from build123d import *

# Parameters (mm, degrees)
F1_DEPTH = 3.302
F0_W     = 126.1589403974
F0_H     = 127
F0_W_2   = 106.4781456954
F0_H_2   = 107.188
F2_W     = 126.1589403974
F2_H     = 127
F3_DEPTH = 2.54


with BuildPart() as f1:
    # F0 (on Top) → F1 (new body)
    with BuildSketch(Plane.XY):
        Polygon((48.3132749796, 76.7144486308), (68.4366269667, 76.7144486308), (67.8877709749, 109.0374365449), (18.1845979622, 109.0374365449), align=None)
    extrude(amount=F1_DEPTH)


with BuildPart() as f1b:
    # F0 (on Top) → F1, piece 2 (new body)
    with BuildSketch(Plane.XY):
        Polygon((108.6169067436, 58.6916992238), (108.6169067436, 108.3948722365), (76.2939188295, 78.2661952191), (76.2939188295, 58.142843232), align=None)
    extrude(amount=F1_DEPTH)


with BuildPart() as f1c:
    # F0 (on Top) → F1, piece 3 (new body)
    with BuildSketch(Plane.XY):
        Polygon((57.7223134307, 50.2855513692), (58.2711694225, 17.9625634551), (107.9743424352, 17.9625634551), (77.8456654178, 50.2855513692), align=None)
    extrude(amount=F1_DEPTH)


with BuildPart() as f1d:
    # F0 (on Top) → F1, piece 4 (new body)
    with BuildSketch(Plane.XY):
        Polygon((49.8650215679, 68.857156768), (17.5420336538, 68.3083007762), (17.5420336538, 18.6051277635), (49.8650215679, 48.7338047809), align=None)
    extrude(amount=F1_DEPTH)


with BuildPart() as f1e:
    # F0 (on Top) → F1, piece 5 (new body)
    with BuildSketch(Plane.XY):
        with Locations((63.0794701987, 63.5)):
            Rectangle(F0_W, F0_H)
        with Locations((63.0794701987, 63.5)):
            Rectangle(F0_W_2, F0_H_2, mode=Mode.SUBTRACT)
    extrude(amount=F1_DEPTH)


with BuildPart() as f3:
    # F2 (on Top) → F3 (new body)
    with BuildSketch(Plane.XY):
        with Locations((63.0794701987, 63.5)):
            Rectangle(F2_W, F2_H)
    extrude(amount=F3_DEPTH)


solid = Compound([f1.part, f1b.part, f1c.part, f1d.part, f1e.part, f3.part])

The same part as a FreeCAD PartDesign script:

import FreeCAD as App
import Part
import Sketcher

V = App.Vector
Q = App.Units.Quantity


def add_polygon(sketch, points):
    """Adds a closed chain of lines whose ends are joined by coincident constraints."""
    first, n = sketch.GeometryCount, len(points)
    for a, b in zip(points, points[1:] + points[:1]):
        sketch.addGeometry(Part.LineSegment(App.Vector(*a, 0), App.Vector(*b, 0)), False)
    for i in range(n):
        sketch.addConstraint(Sketcher.Constraint("Coincident", first + i, 2, first + (i + 1) % n, 1))

doc = App.newDocument("Part")
body = doc.addObject("PartDesign::Body", "Body")

# Sketch on XY plane
sketch1 = body.newObject("Sketcher::SketchObject", "Sketch")
sketch1.AttachmentSupport = (doc.getObject("XY_Plane"), [""])
sketch1.MapMode = "FlatFace"
add_polygon(sketch1, [(48, 77), (68, 77), (68, 109), (18, 109)])  # lines 0-3
sketch1.addConstraint([
    Sketcher.Constraint("Horizontal", 0),
    Sketcher.Constraint("Horizontal", 2),
    Sketcher.Constraint("DistanceX", 0, 1, 0, 2, 20.123352),
    Sketcher.Constraint("DistanceX", 2, 2, 2, 1, 49.703173),
    Sketcher.Constraint("DistanceY", -1, 1, 0, 2, 76.714449),
    Sketcher.Constraint("DistanceX", -1, 1, 1, 2, 67.887771),
    Sketcher.Constraint("DistanceX", 2, 2, 0, 2, 50.252029),
    Sketcher.Constraint("Distance", 1, 32.327647),
])
pad1 = body.newObject("PartDesign::Pad", "Pad")
pad1.Profile = sketch1
pad1.Length = Q("0.13 in")
body2 = doc.addObject("PartDesign::Body", "Body001")

# Sketch on XY plane
sketch2 = body2.newObject("Sketcher::SketchObject", "Sketch001")
sketch2.AttachmentSupport = (doc.getObject("XY_Plane001"), [""])
sketch2.MapMode = "FlatFace"
add_polygon(sketch2, [(109, 59), (109, 108), (76, 78), (76, 58)])  # lines 0-3
sketch2.addConstraint([
    Sketcher.Constraint("Vertical", 0),
    Sketcher.Constraint("Vertical", 2),
    Sketcher.Constraint("DistanceY", 2, 2, 2, 1, 20.123352),
    Sketcher.Constraint("DistanceY", -1, 1, 3, 2, 58.691699),
    Sketcher.Constraint("DistanceY", 0, 1, 0, 2, 49.703173),
    Sketcher.Constraint("DistanceX", -1, 1, 1, 2, 76.293919),
    Sketcher.Constraint("DistanceY", 2, 2, 0, 2, 50.252029),
    Sketcher.Constraint("Distance", 1, 44.187246),
])
pad2 = body2.newObject("PartDesign::Pad", "Pad001")
pad2.Profile = sketch2
pad2.Length = Q("0.13 in")
body3 = doc.addObject("PartDesign::Body", "Body002")

# Sketch on XY plane
sketch3 = body3.newObject("Sketcher::SketchObject", "Sketch002")
sketch3.AttachmentSupport = (doc.getObject("XY_Plane002"), [""])
sketch3.MapMode = "FlatFace"
add_polygon(sketch3, [(58, 50), (58, 18), (108, 18), (78, 50)])  # lines 0-3
sketch3.addConstraint([
    Sketcher.Constraint("Horizontal", 1),
    Sketcher.Constraint("Horizontal", 3),
    Sketcher.Constraint("DistanceX", 3, 2, 3, 1, 20.123352),
    Sketcher.Constraint("DistanceX", 1, 1, 1, 2, 49.703173),
    Sketcher.Constraint("DistanceX", -1, 1, 0, 2, 58.271169),
    Sketcher.Constraint("DistanceY", -1, 1, 2, 2, 50.285551),
    Sketcher.Constraint("DistanceX", 3, 2, 1, 2, 50.252029),
    Sketcher.Constraint("Distance", 0, 32.327647),
])
pad3 = body3.newObject("PartDesign::Pad", "Pad002")
pad3.Profile = sketch3
pad3.Length = Q("0.13 in")
body4 = doc.addObject("PartDesign::Body", "Body003")

# Sketch on XY plane
sketch4 = body4.newObject("Sketcher::SketchObject", "Sketch003")
sketch4.AttachmentSupport = (doc.getObject("XY_Plane003"), [""])
sketch4.MapMode = "FlatFace"
add_polygon(sketch4, [(50, 69), (18, 68), (18, 19), (50, 49)])  # lines 0-3
sketch4.addConstraint([
    Sketcher.Constraint("Vertical", 1),
    Sketcher.Constraint("Vertical", 3),
    Sketcher.Constraint("DistanceY", 3, 1, 3, 2, 20.123352),
    Sketcher.Constraint("DistanceY", -1, 1, 0, 2, 68.308301),
    Sketcher.Constraint("DistanceY", 1, 2, 1, 1, 49.703173),
    Sketcher.Constraint("DistanceX", -1, 1, 2, 2, 49.865022),
    Sketcher.Constraint("DistanceY", 1, 2, 3, 2, 50.252029),
    Sketcher.Constraint("Distance", 0, 32.327647),
])
pad4 = body4.newObject("PartDesign::Pad", "Pad003")
pad4.Profile = sketch4
pad4.Length = Q("0.13 in")
body5 = doc.addObject("PartDesign::Body", "Body004")

# Sketch on XY plane
sketch5 = body5.newObject("Sketcher::SketchObject", "Sketch004")
sketch5.AttachmentSupport = (doc.getObject("XY_Plane004"), [""])
sketch5.MapMode = "FlatFace"
add_polygon(sketch5, [(0, 127), (0, 0), (126, 0), (126, 127)])  # lines 0-3
add_polygon(sketch5, [(116, 10), (10, 10), (10, 117), (116, 117)])  # lines 4-7
sketch5.addConstraint([
    Sketcher.Constraint("Vertical", 0),
    Sketcher.Constraint("Horizontal", 1),
    Sketcher.Constraint("Vertical", 2),
    Sketcher.Constraint("Horizontal", 3),
    Sketcher.Constraint("Horizontal", 4),
    Sketcher.Constraint("Vertical", 5),
    Sketcher.Constraint("Horizontal", 6),
    Sketcher.Constraint("Vertical", 7),
    Sketcher.Constraint("Coincident", 0, 2, -1, 1),
    Sketcher.Constraint("DistanceY", 0, 2, 0, 1, Q("5 in")),
    Sketcher.Constraint("DistanceY", 5, 1, 5, 2, Q("4.22 in")),
    Sketcher.Constraint("DistanceY", -1, 1, 4, 2, Q("0.39 in")),
    Sketcher.Constraint("DistanceX", 1, 1, 1, 2, 126.15894),
    Sketcher.Constraint("DistanceX", 4, 2, 4, 1, 106.478146),
    Sketcher.Constraint("DistanceX", -1, 1, 4, 2, 9.840397),
])
pad5 = body5.newObject("PartDesign::Pad", "Pad004")
pad5.Profile = sketch5
pad5.Length = Q("0.13 in")
body6 = doc.addObject("PartDesign::Body", "Body005")

# Sketch on XY plane
sketch6 = body6.newObject("Sketcher::SketchObject", "Sketch005")
sketch6.AttachmentSupport = (doc.getObject("XY_Plane005"), [""])
sketch6.MapMode = "FlatFace"
add_polygon(sketch6, [(0, 127), (0, 0), (126, 0), (126, 127)])  # lines 0-3
sketch6.addConstraint([
    Sketcher.Constraint("Vertical", 0),
    Sketcher.Constraint("Horizontal", 1),
    Sketcher.Constraint("Vertical", 2),
    Sketcher.Constraint("Horizontal", 3),
    Sketcher.Constraint("Coincident", 0, 2, -1, 1),
    Sketcher.Constraint("DistanceY", 0, 2, 0, 1, Q("5 in")),
    Sketcher.Constraint("DistanceX", 1, 1, 1, 2, 126.15894),
])
pad6 = body6.newObject("PartDesign::Pad", "Pad005")
pad6.Profile = sketch6
pad6.Length = Q("0.1 in")

doc.recompute()
